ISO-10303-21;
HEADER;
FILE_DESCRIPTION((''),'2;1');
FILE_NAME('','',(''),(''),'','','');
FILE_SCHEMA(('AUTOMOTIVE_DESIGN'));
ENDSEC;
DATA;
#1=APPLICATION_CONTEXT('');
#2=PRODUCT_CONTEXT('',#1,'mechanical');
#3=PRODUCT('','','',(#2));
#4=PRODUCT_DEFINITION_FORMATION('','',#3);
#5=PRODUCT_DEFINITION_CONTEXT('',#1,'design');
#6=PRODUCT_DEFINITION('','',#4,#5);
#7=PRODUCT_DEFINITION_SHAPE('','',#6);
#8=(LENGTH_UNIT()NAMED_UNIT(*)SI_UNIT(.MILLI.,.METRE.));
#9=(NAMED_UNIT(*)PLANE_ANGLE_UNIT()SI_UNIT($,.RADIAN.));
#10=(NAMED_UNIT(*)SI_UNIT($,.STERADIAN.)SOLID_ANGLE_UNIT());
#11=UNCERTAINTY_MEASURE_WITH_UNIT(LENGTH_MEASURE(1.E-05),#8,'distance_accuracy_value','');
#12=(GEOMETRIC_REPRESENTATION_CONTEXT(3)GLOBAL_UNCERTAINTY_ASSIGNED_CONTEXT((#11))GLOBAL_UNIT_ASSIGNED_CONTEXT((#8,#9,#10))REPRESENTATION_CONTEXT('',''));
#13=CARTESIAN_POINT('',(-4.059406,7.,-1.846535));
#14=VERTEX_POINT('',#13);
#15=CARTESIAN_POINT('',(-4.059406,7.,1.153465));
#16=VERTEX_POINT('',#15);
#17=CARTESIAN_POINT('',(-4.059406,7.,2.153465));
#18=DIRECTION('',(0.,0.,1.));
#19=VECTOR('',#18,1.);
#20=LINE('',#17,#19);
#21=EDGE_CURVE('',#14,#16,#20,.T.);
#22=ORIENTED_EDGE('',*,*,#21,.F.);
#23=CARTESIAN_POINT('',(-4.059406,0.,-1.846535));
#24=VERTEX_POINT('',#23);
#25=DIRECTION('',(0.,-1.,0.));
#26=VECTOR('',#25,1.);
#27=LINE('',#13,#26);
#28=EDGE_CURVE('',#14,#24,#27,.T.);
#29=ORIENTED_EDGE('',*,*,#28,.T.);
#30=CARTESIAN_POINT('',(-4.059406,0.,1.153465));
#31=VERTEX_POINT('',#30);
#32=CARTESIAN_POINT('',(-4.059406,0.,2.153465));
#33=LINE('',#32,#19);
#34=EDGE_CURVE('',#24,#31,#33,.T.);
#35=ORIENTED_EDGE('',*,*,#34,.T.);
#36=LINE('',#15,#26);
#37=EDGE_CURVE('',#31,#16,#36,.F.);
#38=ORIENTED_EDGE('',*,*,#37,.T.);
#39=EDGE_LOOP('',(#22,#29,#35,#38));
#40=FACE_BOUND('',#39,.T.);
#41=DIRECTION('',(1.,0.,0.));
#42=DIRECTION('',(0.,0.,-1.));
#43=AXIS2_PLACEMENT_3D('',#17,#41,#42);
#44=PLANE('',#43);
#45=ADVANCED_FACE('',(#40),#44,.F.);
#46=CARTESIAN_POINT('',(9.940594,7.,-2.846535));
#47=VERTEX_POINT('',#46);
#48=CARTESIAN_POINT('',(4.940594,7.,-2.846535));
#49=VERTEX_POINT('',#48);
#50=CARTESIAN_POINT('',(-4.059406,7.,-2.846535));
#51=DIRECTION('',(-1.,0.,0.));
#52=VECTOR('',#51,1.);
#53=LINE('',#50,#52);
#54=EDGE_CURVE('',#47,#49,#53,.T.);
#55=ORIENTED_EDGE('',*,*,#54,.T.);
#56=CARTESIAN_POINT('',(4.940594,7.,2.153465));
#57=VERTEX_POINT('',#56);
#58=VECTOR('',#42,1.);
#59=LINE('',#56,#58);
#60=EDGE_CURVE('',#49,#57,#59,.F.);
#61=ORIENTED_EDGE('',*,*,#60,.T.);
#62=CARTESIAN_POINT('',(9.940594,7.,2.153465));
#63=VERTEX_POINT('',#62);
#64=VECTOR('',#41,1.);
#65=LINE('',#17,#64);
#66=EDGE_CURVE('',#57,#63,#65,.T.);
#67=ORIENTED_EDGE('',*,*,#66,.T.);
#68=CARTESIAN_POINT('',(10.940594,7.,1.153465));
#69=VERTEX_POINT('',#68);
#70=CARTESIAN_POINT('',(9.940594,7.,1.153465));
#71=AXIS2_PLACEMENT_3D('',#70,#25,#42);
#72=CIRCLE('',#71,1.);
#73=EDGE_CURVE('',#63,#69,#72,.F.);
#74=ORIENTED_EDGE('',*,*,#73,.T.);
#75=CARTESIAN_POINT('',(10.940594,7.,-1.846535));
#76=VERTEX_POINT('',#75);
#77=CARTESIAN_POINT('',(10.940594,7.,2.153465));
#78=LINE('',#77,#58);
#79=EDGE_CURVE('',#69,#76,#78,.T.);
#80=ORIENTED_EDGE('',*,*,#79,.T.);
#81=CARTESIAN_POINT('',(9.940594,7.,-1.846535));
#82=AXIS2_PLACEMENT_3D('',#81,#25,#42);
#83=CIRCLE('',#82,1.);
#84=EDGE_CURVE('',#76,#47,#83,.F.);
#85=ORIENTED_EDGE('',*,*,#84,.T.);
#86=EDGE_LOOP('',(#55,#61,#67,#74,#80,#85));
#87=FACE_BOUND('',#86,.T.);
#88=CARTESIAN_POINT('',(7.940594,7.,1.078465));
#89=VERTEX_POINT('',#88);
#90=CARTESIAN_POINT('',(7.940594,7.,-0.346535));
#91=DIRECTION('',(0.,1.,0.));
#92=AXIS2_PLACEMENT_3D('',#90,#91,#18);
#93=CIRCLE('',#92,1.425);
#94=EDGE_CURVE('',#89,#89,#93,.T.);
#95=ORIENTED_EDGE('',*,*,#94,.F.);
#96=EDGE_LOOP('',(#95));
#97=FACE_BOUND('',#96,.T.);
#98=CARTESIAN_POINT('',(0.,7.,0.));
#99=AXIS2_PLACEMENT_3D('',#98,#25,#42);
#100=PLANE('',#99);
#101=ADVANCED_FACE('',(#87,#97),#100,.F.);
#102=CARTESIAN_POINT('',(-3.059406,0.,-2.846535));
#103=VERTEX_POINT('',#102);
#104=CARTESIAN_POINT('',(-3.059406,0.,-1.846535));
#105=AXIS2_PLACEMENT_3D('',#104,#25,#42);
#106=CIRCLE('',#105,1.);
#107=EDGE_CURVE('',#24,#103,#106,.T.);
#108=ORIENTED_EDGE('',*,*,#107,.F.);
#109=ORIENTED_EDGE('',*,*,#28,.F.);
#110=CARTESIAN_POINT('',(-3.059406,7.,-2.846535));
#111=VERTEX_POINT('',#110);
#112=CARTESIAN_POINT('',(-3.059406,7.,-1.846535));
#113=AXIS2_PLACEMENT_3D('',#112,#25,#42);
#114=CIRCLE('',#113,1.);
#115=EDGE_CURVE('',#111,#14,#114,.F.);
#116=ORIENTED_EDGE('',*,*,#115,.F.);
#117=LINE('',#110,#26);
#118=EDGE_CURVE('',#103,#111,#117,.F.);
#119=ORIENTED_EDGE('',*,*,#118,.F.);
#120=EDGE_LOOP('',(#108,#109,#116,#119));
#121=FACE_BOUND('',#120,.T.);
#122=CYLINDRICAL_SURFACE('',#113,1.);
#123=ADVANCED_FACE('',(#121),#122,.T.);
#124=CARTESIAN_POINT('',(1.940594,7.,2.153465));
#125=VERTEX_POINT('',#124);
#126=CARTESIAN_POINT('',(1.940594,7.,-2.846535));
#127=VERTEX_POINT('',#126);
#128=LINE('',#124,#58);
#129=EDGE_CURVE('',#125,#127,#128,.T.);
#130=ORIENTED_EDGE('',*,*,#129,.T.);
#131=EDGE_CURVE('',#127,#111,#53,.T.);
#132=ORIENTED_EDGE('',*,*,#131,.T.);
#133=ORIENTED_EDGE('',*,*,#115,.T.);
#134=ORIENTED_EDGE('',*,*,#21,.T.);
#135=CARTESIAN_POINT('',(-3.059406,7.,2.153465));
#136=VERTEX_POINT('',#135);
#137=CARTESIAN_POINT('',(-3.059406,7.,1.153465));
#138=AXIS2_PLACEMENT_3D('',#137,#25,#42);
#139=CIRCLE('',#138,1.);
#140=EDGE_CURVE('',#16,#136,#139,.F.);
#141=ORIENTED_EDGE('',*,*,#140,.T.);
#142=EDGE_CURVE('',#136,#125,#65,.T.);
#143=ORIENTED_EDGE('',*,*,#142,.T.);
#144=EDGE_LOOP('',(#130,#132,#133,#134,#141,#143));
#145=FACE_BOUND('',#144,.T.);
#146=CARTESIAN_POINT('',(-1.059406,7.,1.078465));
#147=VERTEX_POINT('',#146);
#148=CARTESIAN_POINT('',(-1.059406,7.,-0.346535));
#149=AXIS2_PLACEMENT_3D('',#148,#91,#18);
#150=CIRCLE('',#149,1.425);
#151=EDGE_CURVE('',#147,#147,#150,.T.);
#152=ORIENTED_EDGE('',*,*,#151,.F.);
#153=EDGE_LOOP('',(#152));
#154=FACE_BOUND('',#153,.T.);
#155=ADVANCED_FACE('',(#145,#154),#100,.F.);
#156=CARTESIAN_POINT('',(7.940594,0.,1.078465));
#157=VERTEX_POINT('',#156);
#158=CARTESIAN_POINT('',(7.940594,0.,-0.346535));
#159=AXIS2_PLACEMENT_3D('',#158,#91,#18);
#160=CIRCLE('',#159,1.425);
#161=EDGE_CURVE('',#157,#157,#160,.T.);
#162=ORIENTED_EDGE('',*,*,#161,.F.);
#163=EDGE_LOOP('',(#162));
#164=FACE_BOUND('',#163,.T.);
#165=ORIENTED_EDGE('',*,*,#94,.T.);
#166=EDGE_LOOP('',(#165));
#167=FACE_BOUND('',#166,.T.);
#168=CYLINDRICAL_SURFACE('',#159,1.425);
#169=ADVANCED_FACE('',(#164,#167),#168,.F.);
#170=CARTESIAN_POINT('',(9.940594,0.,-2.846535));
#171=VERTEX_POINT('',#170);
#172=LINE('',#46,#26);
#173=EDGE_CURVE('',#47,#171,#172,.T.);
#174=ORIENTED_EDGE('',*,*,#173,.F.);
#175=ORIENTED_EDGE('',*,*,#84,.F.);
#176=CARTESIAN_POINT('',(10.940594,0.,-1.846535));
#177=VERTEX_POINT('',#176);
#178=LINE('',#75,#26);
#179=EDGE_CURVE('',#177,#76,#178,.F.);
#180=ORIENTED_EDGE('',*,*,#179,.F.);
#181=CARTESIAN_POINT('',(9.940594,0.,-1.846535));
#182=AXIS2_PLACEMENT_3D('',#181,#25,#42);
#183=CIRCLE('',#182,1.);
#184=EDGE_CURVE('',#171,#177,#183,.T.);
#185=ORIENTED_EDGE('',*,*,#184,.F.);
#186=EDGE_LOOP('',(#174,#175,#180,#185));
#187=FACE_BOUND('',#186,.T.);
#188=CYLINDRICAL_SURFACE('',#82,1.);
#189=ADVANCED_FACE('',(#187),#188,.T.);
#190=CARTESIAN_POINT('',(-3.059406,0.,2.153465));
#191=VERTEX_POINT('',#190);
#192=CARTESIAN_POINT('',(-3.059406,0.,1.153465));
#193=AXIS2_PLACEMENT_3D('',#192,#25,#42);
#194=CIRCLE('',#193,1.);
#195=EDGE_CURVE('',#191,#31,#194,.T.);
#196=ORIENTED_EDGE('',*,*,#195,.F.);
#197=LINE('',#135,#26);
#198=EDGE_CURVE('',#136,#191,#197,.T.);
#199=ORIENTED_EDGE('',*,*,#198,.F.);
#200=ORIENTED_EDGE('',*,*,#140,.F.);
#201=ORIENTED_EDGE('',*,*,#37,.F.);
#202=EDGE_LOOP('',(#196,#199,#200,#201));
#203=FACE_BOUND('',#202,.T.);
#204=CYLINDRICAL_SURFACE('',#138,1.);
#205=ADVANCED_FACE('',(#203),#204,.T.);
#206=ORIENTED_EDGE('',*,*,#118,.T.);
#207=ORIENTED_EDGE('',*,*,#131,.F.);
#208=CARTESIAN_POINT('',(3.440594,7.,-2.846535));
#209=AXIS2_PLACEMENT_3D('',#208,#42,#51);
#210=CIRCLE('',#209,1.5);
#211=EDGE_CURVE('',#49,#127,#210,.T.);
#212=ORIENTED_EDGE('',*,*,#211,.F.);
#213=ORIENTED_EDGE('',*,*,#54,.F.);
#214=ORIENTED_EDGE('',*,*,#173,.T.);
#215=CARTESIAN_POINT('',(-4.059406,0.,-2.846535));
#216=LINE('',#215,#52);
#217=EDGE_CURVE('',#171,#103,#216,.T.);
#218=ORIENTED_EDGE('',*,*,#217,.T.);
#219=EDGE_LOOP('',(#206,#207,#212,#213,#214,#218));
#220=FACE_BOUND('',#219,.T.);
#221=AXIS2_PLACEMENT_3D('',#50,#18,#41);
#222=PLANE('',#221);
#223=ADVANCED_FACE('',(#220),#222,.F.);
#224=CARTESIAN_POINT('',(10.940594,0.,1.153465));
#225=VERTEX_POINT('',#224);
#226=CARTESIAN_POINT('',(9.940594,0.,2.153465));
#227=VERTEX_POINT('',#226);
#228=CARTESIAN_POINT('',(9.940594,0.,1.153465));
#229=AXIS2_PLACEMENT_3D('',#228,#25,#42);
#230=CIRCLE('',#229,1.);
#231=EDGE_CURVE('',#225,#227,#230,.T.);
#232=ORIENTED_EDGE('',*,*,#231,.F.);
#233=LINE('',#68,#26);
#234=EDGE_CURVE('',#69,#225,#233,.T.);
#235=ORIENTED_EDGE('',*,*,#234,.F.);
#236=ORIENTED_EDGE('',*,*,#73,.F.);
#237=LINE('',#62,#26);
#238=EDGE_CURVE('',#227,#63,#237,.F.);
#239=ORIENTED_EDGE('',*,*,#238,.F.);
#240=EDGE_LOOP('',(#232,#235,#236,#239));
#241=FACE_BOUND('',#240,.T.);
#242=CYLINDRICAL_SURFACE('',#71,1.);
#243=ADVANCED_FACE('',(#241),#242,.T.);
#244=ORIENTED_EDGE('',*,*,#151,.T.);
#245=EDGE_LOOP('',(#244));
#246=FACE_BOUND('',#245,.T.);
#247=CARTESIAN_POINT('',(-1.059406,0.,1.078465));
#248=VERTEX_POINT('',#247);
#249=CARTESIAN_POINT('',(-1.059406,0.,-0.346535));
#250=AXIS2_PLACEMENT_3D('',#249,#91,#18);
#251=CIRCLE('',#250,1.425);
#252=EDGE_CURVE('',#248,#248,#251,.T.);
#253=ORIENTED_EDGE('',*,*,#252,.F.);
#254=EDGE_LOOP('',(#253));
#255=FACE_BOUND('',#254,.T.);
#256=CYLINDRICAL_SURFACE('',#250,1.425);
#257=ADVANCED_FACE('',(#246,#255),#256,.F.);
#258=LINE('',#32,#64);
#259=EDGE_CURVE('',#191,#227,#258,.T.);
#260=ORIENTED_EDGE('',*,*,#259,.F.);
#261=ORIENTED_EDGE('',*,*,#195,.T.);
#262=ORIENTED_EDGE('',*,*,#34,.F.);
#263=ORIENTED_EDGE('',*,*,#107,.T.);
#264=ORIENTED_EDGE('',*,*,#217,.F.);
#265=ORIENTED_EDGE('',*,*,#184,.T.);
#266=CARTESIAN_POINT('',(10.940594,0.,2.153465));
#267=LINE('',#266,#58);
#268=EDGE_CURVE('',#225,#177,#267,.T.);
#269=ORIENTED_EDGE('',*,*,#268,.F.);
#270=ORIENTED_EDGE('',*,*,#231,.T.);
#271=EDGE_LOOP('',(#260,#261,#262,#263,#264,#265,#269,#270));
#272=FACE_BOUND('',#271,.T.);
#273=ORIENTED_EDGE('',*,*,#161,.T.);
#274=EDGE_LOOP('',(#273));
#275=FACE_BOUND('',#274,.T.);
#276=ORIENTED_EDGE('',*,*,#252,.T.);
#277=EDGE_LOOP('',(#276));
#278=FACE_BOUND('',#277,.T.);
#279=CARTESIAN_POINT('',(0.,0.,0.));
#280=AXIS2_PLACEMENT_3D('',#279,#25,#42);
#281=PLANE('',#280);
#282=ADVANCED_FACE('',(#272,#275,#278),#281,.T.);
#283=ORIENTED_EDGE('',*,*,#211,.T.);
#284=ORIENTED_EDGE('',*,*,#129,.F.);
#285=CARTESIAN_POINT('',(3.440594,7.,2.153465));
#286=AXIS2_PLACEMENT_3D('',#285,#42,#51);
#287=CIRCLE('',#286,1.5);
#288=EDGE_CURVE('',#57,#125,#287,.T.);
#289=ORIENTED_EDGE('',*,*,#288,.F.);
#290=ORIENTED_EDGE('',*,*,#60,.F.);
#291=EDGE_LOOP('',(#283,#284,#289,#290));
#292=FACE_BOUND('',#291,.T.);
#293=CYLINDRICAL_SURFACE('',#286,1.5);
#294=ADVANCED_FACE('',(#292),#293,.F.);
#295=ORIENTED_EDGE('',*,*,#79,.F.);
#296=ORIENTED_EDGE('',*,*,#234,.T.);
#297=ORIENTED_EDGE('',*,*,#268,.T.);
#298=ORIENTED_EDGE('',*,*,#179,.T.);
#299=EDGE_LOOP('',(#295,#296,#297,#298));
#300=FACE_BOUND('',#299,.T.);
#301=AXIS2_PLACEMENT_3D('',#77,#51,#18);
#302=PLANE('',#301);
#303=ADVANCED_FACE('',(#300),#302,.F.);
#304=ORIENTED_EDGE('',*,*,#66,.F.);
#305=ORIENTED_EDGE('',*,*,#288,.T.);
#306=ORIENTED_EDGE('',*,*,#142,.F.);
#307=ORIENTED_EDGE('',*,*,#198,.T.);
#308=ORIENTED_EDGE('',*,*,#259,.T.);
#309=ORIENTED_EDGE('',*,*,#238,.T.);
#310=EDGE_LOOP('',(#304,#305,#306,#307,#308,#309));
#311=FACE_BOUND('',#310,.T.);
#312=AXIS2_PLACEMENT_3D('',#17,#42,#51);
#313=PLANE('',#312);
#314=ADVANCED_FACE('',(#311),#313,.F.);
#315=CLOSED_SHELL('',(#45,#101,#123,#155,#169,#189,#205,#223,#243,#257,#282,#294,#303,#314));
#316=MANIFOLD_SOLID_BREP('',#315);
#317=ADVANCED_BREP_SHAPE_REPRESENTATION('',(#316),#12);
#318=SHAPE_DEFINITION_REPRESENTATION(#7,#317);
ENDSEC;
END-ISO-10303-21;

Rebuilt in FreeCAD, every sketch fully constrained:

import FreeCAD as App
import Part
import Sketcher

V = App.Vector


def edges_at(feature, points):
    """Names of the edges that pass closest to the given points."""
    edges = feature.Shape.Edges
    near = lambda p: min(range(len(edges)), key=lambda i: edges[i].distToShape(Part.Vertex(*p))[0])
    return sorted({f"Edge{near(p) + 1}" for p in points})


def add_polygon(sketch, points):
    """Adds a closed chain of lines whose ends are joined by coincident constraints."""
    first, n = sketch.GeometryCount, len(points)
    for a, b in zip(points, points[1:] + points[:1]):
        sketch.addGeometry(Part.LineSegment(App.Vector(*a, 0), App.Vector(*b, 0)), False)
    for i in range(n):
        sketch.addConstraint(Sketcher.Constraint("Coincident", first + i, 2, first + (i + 1) % n, 1))

doc = App.newDocument("Part")
body = doc.addObject("PartDesign::Body", "Body")

# Sketch on XZ plane
sketch1 = body.newObject("Sketcher::SketchObject", "Sketch")
sketch1.AttachmentSupport = (doc.getObject("XZ_Plane"), [""])
sketch1.MapMode = "FlatFace"
add_polygon(sketch1, [(-4, -3), (-4, 2), (11, 2), (11, -3)])  # lines 0-3
sketch1.addConstraint([
    Sketcher.Constraint("Vertical", 0),
    Sketcher.Constraint("Horizontal", 1),
    Sketcher.Constraint("Vertical", 2),
    Sketcher.Constraint("Horizontal", 3),
    Sketcher.Constraint("DistanceX", 1, 1, 1, 2, 15.0),
    Sketcher.Constraint("DistanceY", 0, 1, 0, 2, 5.0),
    Sketcher.Constraint("DistanceX", 0, 2, -1, 1, 4.059406),
    Sketcher.Constraint("DistanceY", -1, 1, 0, 2, 2.153465),
])
pad1 = body.newObject("PartDesign::Pad", "Pad")
pad1.Profile = sketch1
pad1.Length = 7
pad1.Reversed = True

# Sketch on XY plane
sketch2 = body.newObject("Sketcher::SketchObject", "Sketch001")
sketch2.AttachmentSupport = (doc.getObject("XY_Plane"), [""])
sketch2.MapMode = "FlatFace"
sketch2.AttachmentOffset = App.Placement(V(0, 0, -2.846535), App.Rotation())
sketch2.addGeometry(Part.Circle(V(3.4, 7, 0), V(0, 0, 1), 1.5), False)
sketch2.addConstraint([
    Sketcher.Constraint("Diameter", 0, 3.0),
    Sketcher.Constraint("DistanceY", -1, 1, 0, 3, 7.0),
    Sketcher.Constraint("DistanceX", -1, 1, 0, 3, 3.440594),
])
pocket1 = body.newObject("PartDesign::Pocket", "Pocket")
pocket1.Profile = sketch2
pocket1.Type = "ThroughAll"
pocket1.Reversed = True

# Sketch on XZ plane
sketch3 = body.newObject("Sketcher::SketchObject", "Sketch002")
sketch3.AttachmentSupport = (doc.getObject("XZ_Plane"), [""])
sketch3.MapMode = "FlatFace"
sketch3.AttachmentOffset = App.Placement(V(0, 0, -7), App.Rotation())
sketch3.addGeometry([
    Part.Circle(V(7.9, -0.3, 0), V(0, 0, 1), 1.4),
    Part.Circle(V(-1.1, -0.3, 0), V(0, 0, 1), 1.4),
], False)
sketch3.addConstraint([
    Sketcher.Constraint("Equal", 0, 1),
    Sketcher.Constraint("Horizontal", 0, 3, 1, 3),
    Sketcher.Constraint("Diameter", 0, 2.85),
    Sketcher.Constraint("DistanceX", 1, 3, 0, 3, 9.0),
    Sketcher.Constraint("DistanceX", -1, 1, 0, 3, 7.940594),
    Sketcher.Constraint("DistanceY", 0, 3, -1, 1, 0.346535),
])
pocket2 = body.newObject("PartDesign::Pocket", "Pocket001")
pocket2.Profile = sketch3
pocket2.Type = "ThroughAll"
pocket2.Reversed = True
doc.recompute()

fillet = body.newObject("PartDesign::Fillet", "Fillet")
fillet.Base = (pocket2, edges_at(pocket2, [
    (-4.059, 3.5, -2.847),
    (10.941, 3.5, -2.847),
    (10.941, 3.5, 2.153),
    (-4.059, 3.5, 2.153),
]))
fillet.Radius = 1

doc.recompute()
